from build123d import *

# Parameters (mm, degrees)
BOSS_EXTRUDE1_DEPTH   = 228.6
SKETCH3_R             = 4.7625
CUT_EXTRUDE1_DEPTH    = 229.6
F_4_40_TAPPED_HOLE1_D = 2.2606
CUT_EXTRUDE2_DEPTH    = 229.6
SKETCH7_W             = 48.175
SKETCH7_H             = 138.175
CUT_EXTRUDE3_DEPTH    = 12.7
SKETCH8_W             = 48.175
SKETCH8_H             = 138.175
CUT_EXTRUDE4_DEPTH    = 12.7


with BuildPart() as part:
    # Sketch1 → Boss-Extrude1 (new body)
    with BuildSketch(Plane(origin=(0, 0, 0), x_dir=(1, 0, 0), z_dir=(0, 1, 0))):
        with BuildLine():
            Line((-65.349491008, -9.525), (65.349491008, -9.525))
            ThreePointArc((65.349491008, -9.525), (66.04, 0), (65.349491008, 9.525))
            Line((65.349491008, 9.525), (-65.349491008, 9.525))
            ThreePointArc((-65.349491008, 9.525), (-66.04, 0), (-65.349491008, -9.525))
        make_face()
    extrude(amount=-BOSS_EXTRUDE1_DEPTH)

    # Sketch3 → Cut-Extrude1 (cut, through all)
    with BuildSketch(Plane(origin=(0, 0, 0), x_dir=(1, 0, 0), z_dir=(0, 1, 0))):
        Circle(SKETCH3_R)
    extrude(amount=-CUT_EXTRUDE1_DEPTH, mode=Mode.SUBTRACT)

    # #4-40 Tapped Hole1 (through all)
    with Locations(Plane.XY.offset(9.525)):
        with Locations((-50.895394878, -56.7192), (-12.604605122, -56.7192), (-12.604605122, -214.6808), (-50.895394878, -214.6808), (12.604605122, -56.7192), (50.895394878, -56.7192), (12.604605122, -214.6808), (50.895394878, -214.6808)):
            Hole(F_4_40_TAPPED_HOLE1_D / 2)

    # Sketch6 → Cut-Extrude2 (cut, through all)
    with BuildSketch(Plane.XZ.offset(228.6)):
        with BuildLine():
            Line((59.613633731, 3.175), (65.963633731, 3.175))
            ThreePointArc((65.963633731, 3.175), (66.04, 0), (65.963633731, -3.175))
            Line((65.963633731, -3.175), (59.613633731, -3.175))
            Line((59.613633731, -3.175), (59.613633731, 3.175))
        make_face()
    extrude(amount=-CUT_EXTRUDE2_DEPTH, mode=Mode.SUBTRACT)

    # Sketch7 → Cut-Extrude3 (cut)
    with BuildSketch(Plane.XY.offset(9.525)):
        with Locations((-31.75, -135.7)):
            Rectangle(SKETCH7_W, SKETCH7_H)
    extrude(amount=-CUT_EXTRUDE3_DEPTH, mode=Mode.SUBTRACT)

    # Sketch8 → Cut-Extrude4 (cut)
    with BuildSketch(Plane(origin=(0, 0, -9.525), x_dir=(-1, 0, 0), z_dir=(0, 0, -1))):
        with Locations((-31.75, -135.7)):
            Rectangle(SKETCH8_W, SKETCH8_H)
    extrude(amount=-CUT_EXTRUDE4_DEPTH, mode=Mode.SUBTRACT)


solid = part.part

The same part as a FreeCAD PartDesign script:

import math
import FreeCAD as App
import Part
import Sketcher
from FreeCAD import Vector
Q = App.Units.Quantity

doc = App.newDocument("Part")
body = doc.addObject("PartDesign::Body", "Body")

# Sketch on XZ plane
sketch1 = body.newObject("Sketcher::SketchObject", "Sketch")
sketch1.AttachmentSupport = (doc.getObject("XZ_Plane"), [""])
sketch1.MapMode = "FlatFace"
sketch1.addGeometry(Part.LineSegment(Vector(-65, 10, 0), Vector(65, 10, 0)), False)
sketch1.addGeometry(Part.ArcOfCircle(Part.Circle(Vector(0, 0, 0), Vector(0, 0, 1), 66), math.radians(-8.29), math.radians(8.29)), False)
sketch1.addGeometry(Part.LineSegment(Vector(65, -10, 0), Vector(-65, -10, 0)), False)
sketch1.addGeometry(Part.ArcOfCircle(Part.Circle(Vector(0, 0, 0), Vector(0, 0, 1), 66), math.radians(171.71), math.radians(188.29)), False)
sketch1.addConstraint(Sketcher.Constraint("Coincident", 0, 2, 1, 2))
sketch1.addConstraint(Sketcher.Constraint("Coincident", 1, 1, 2, 1))
sketch1.addConstraint(Sketcher.Constraint("Coincident", 2, 2, 3, 2))
sketch1.addConstraint(Sketcher.Constraint("Coincident", 3, 1, 0, 1))
sketch1.addConstraint(Sketcher.Constraint("Horizontal", 0))
sketch1.addConstraint(Sketcher.Constraint("Horizontal", 2))
sketch1.addConstraint(Sketcher.Constraint("Coincident", 1, 3, -1, 1))
sketch1.addConstraint(Sketcher.Constraint("Coincident", 3, 3, -1, 1))
sketch1.addConstraint(Sketcher.Constraint("Equal", 1, 3))
sketch1.addConstraint(Sketcher.Constraint("Vertical", 0, 2, 1, 1))
sketch1.addConstraint(Sketcher.Constraint("Radius", 1, Q("2.6 in")))
sketch1.addConstraint(Sketcher.Constraint("DistanceY", 1, 1, 0, 2, Q("0.75 in")))
pad1 = body.newObject("PartDesign::Pad", "Pad")
pad1.Profile = sketch1
pad1.Length = Q("9 in")

# Sketch on XZ plane
sketch2 = body.newObject("Sketcher::SketchObject", "Sketch001")
sketch2.AttachmentSupport = (doc.getObject("XZ_Plane"), [""])
sketch2.MapMode = "FlatFace"
sketch2.addGeometry(Part.Circle(Vector(0, 0, 0), Vector(0, 0, 1), 4.8), False)
sketch2.addConstraint(Sketcher.Constraint("Coincident", 0, 3, -1, 1))
sketch2.addConstraint(Sketcher.Constraint("Diameter", 0, Q("0.375 in")))
pocket1 = body.newObject("PartDesign::Pocket", "Pocket")
pocket1.Profile = sketch2
pocket1.Type = "ThroughAll"
pocket1.Reversed = True

# Sketch on XY plane
sketch3 = body.newObject("Sketcher::SketchObject", "Sketch002")
sketch3.AttachmentSupport = (doc.getObject("XY_Plane"), [""])
sketch3.MapMode = "FlatFace"
sketch3.AttachmentOffset = App.Placement(Vector(0, 0, 0.375 * 25.4), App.Rotation())
sketch3.addGeometry(Part.Circle(Vector(-50.9, -56.7, 0), Vector(0, 0, 1), 1.1), False)
sketch3.addGeometry(Part.Circle(Vector(-12.6, -56.7, 0), Vector(0, 0, 1), 1.1), False)
sketch3.addGeometry(Part.Circle(Vector(-12.6, -214.7, 0), Vector(0, 0, 1), 1.1), False)
sketch3.addGeometry(Part.Circle(Vector(-50.9, -214.7, 0), Vector(0, 0, 1), 1.1), False)
sketch3.addGeometry(Part.Circle(Vector(12.6, -56.7, 0), Vector(0, 0, 1), 1.1), False)
sketch3.addGeometry(Part.Circle(Vector(50.9, -56.7, 0), Vector(0, 0, 1), 1.1), False)
sketch3.addGeometry(Part.Circle(Vector(12.6, -214.7, 0), Vector(0, 0, 1), 1.1), False)
sketch3.addGeometry(Part.Circle(Vector(50.9, -214.7, 0), Vector(0, 0, 1), 1.1), False)
sketch3.addConstraint(Sketcher.Constraint("Equal", 0, 1))
sketch3.addConstraint(Sketcher.Constraint("Equal", 1, 2))
sketch3.addConstraint(Sketcher.Constraint("Equal", 2, 3))
sketch3.addConstraint(Sketcher.Constraint("Equal", 3, 4))
sketch3.addConstraint(Sketcher.Constraint("Equal", 4, 5))
sketch3.addConstraint(Sketcher.Constraint("Equal", 5, 6))
sketch3.addConstraint(Sketcher.Constraint("Equal", 6, 7))
sketch3.addConstraint(Sketcher.Constraint("Symmetric", 1, 3, 4, 3, -2))
sketch3.addConstraint(Sketcher.Constraint("Symmetric", 0, 3, 5, 3, -2))
sketch3.addConstraint(Sketcher.Constraint("Symmetric", 2, 3, 6, 3, -2))
sketch3.addConstraint(Sketcher.Constraint("Symmetric", 3, 3, 7, 3, -2))
sketch3.addConstraint(Sketcher.Constraint("Horizontal", 0, 3, 1, 3))
sketch3.addConstraint(Sketcher.Constraint("Horizontal", 2, 3, 3, 3))
sketch3.addConstraint(Sketcher.Constraint("Vertical", 1, 3, 2, 3))
sketch3.addConstraint(Sketcher.Constraint("Vertical", 0, 3, 3, 3))
sketch3.addConstraint(Sketcher.Constraint("Diameter", 0, Q("0.089 in")))
sketch3.addConstraint(Sketcher.Constraint("DistanceX", 0, 3, 4, 3, Q("2.5 in")))
sketch3.addConstraint(Sketcher.Constraint("DistanceY", 2, 3, -1, 1, Q("8.452 in")))
sketch3.addConstraint(Sketcher.Constraint("DistanceY", 0, 3, -1, 1, Q("56.7192 mm")))
sketch3.addConstraint(Sketcher.Constraint("DistanceX", 0, 3, 1, 3, Q("38.29079 mm")))
doc.recompute()
hole = body.newObject("PartDesign::Hole", "Hole")
hole.Profile = sketch3
hole.ThreadType = "None"
hole.Diameter = Q("0.089 in")
hole.DepthType = "ThroughAll"

# Sketch on XZ plane
sketch4 = body.newObject("Sketcher::SketchObject", "Sketch003")
sketch4.AttachmentSupport = (doc.getObject("XZ_Plane"), [""])
sketch4.MapMode = "FlatFace"
sketch4.AttachmentOffset = App.Placement(Vector(0, 0, 9 * 25.4), App.Rotation())
sketch4.addGeometry(Part.LineSegment(Vector(66, 3, 0), Vector(60, 3, 0)), False)
sketch4.addGeometry(Part.LineSegment(Vector(60, 3, 0), Vector(60, -3, 0)), False)
sketch4.addGeometry(Part.LineSegment(Vector(60, -3, 0), Vector(66, -3, 0)), False)
sketch4.addGeometry(Part.ArcOfCircle(Part.Circle(Vector(0, 0, 0), Vector(0, 0, 1), 66), math.radians(-2.76), math.radians(2.76)), False)
sketch4.addConstraint(Sketcher.Constraint("Coincident", 0, 2, 1, 1))
sketch4.addConstraint(Sketcher.Constraint("Coincident", 1, 2, 2, 1))
sketch4.addConstraint(Sketcher.Constraint("Coincident", 2, 2, 3, 1))
sketch4.addConstraint(Sketcher.Constraint("Coincident", 3, 2, 0, 1))
sketch4.addConstraint(Sketcher.Constraint("Horizontal", 0))
sketch4.addConstraint(Sketcher.Constraint("Vertical", 1))
sketch4.addConstraint(Sketcher.Constraint("Horizontal", 2))
sketch4.addConstraint(Sketcher.Constraint("Coincident", 3, 3, -1, 1))
sketch4.addConstraint(Sketcher.Constraint("Vertical", 2, 2, 3, 2))
sketch4.addConstraint(Sketcher.Constraint("Equal", 2, 1))
sketch4.addConstraint(Sketcher.Constraint("Radius", 3, Q("2.6 in")))
sketch4.addConstraint(Sketcher.Constraint("DistanceX", 0, 2, 0, 1, Q("0.25 in")))
pocket2 = body.newObject("PartDesign::Pocket", "Pocket001")
pocket2.Profile = sketch4
pocket2.Type = "ThroughAll"

# Sketch on XY plane
sketch5 = body.newObject("Sketcher::SketchObject", "Sketch004")
sketch5.AttachmentSupport = (doc.getObject("XY_Plane"), [""])
sketch5.MapMode = "FlatFace"
sketch5.AttachmentOffset = App.Placement(Vector(0, 0, 0.375 * 25.4), App.Rotation())
sketch5.addGeometry(Part.LineSegment(Vector(-56, -67, 0), Vector(-56, -205, 0)), False)
sketch5.addGeometry(Part.LineSegment(Vector(-56, -205, 0), Vector(-8, -205, 0)), False)
sketch5.addGeometry(Part.LineSegment(Vector(-8, -205, 0), Vector(-8, -67, 0)), False)
sketch5.addGeometry(Part.LineSegment(Vector(-8, -67, 0), Vector(-56, -67, 0)), False)
sketch5.addConstraint(Sketcher.Constraint("Coincident", 0, 2, 1, 1))
sketch5.addConstraint(Sketcher.Constraint("Coincident", 1, 2, 2, 1))
sketch5.addConstraint(Sketcher.Constraint("Coincident", 2, 2, 3, 1))
sketch5.addConstraint(Sketcher.Constraint("Coincident", 3, 2, 0, 1))
sketch5.addConstraint(Sketcher.Constraint("Vertical", 0))
sketch5.addConstraint(Sketcher.Constraint("Horizontal", 1))
sketch5.addConstraint(Sketcher.Constraint("Vertical", 2))
sketch5.addConstraint(Sketcher.Constraint("Horizontal", 3))
sketch5.addConstraint(Sketcher.Constraint("DistanceY", 0, 2, -1, 1, Q("8.0625 in")))
sketch5.addConstraint(Sketcher.Constraint("DistanceX", 1, 1, 1, 2, Q("48.175 mm")))
sketch5.addConstraint(Sketcher.Constraint("DistanceY", 0, 2, 0, 1, Q("138.175 mm")))
sketch5.addConstraint(Sketcher.Constraint("DistanceX", 0, 2, -1, 1, Q("55.8375 mm")))
pocket3 = body.newObject("PartDesign::Pocket", "Pocket002")
pocket3.Profile = sketch5
pocket3.Length = Q("0.5 in")

# Sketch on XY plane
sketch6 = body.newObject("Sketcher::SketchObject", "Sketch005")
sketch6.AttachmentSupport = (doc.getObject("XY_Plane"), [""])
sketch6.MapMode = "FlatFace"
sketch6.AttachmentOffset = App.Placement(Vector(0, 0, -0.375 * 25.4), App.Rotation())
sketch6.addGeometry(Part.LineSegment(Vector(56, -67, 0), Vector(56, -205, 0)), False)
sketch6.addGeometry(Part.LineSegment(Vector(56, -205, 0), Vector(8, -205, 0)), False)
sketch6.addGeometry(Part.LineSegment(Vector(8, -205, 0), Vector(8, -67, 0)), False)
sketch6.addGeometry(Part.LineSegment(Vector(8, -67, 0), Vector(56, -67, 0)), False)
sketch6.addConstraint(Sketcher.Constraint("Coincident", 0, 2, 1, 1))
sketch6.addConstraint(Sketcher.Constraint("Coincident", 1, 2, 2, 1))
sketch6.addConstraint(Sketcher.Constraint("Coincident", 2, 2, 3, 1))
sketch6.addConstraint(Sketcher.Constraint("Coincident", 3, 2, 0, 1))
sketch6.addConstraint(Sketcher.Constraint("Vertical", 0))
sketch6.addConstraint(Sketcher.Constraint("Horizontal", 1))
sketch6.addConstraint(Sketcher.Constraint("Vertical", 2))
sketch6.addConstraint(Sketcher.Constraint("Horizontal", 3))
sketch6.addConstraint(Sketcher.Constraint("DistanceY", 0, 2, -1, 1, Q("8.0625 in")))
sketch6.addConstraint(Sketcher.Constraint("DistanceX", 1, 2, 1, 1, Q("48.175 mm")))
sketch6.addConstraint(Sketcher.Constraint("DistanceY", 0, 2, 0, 1, Q("138.175 mm")))
sketch6.addConstraint(Sketcher.Constraint("DistanceX", -1, 1, 0, 2, Q("55.8375 mm")))
pocket4 = body.newObject("PartDesign::Pocket", "Pocket003")
pocket4.Profile = sketch6
pocket4.Length = Q("0.5 in")
pocket4.Reversed = True

doc.recompute()
